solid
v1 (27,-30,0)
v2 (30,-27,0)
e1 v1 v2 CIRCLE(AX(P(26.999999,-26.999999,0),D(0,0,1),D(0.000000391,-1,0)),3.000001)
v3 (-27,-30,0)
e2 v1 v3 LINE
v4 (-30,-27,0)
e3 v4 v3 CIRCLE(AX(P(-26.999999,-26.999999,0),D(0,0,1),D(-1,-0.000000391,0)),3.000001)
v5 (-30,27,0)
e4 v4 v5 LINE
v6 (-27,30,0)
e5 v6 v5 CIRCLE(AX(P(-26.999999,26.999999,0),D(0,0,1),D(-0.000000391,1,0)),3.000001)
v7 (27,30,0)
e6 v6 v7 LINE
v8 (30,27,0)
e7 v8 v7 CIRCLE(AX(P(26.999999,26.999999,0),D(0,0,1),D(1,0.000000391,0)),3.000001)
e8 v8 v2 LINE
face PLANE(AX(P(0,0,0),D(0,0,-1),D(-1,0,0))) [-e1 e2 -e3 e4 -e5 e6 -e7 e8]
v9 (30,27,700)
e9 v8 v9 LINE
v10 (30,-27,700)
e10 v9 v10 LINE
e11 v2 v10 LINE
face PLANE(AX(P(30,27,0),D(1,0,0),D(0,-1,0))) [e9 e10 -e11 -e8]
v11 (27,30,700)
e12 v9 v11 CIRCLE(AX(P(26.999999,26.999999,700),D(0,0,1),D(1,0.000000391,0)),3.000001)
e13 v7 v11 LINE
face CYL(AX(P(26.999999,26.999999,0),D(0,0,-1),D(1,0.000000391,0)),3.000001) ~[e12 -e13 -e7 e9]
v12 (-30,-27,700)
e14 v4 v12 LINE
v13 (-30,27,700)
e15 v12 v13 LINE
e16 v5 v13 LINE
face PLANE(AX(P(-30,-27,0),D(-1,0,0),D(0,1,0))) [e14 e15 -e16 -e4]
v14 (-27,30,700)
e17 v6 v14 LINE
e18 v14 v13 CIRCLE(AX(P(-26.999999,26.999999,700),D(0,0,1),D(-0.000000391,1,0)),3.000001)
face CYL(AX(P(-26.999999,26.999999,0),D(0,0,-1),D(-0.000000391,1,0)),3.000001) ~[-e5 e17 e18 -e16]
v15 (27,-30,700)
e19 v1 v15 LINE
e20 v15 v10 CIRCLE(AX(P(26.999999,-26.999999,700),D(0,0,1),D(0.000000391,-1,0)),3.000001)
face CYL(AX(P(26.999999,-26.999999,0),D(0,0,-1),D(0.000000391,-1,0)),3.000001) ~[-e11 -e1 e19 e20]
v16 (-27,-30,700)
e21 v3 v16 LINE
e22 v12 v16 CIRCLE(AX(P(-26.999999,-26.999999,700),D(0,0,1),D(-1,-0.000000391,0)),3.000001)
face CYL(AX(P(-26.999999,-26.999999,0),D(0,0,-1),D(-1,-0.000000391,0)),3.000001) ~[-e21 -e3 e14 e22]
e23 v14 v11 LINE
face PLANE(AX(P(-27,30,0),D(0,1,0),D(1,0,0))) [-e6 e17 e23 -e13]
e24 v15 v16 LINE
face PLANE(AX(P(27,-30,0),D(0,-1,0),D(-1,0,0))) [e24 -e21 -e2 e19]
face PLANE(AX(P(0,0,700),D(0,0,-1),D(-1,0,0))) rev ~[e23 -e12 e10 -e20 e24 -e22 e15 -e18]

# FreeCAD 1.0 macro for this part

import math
import FreeCAD as App
import Part
import Sketcher
from FreeCAD import Vector
Q = App.Units.Quantity

doc = App.newDocument("Part")
body = doc.addObject("PartDesign::Body", "Body")

sketch1 = body.newObject("Sketcher::SketchObject", "Sketch")
sketch1.AttachmentSupport = (doc.getObject("XY_Plane"), [""])
sketch1.MapMode = "FlatFace"
sketch1.addGeometry([
    Part.LineSegment(Vector(27, 30, 0), Vector(-27, 30, 0)),
    Part.ArcOfCircle(Part.Circle(Vector(-26.999999, 26.999999, 0), Vector(0, 0, 1), 3.000001), math.radians(90.000022), math.radians(179.999978)),
    Part.LineSegment(Vector(-30, 27, 0), Vector(-30, -27, 0)),
    Part.ArcOfCircle(Part.Circle(Vector(-26.999999, -26.999999, 0), Vector(0, 0, 1), 3.000001), math.radians(-179.999978), math.radians(-90.000022)),
    Part.LineSegment(Vector(-27, -30, 0), Vector(27, -30, 0)),
    Part.ArcOfCircle(Part.Circle(Vector(26.999999, -26.999999, 0), Vector(0, 0, 1), 3.000001), math.radians(-89.999978), math.radians(-0.000022)),
    Part.LineSegment(Vector(30, -27, 0), Vector(30, 27, 0)),
    Part.ArcOfCircle(Part.Circle(Vector(26.999999, 26.999999, 0), Vector(0, 0, 1), 3.000001), math.radians(0.000022), math.radians(89.999978)),
], False)
sketch1.addConstraint([
    Sketcher.Constraint("Tangent", 0, 2, 1, 1),
    Sketcher.Constraint("Tangent", 1, 2, 2, 1),
    Sketcher.Constraint("Tangent", 2, 2, 3, 1),
    Sketcher.Constraint("Tangent", 3, 2, 4, 1),
    Sketcher.Constraint("Tangent", 4, 2, 5, 1),
    Sketcher.Constraint("Tangent", 5, 2, 6, 1),
    Sketcher.Constraint("Tangent", 6, 2, 7, 1),
    Sketcher.Constraint("Tangent", 7, 2, 0, 1),
    Sketcher.Constraint("Horizontal", 0),
    Sketcher.Constraint("Vertical", 2),
    Sketcher.Constraint("Horizontal", 4),
    Sketcher.Constraint("Vertical", 6),
    Sketcher.Constraint("Equal", 1, 3),
    Sketcher.Constraint("Equal", 3, 5),
    Sketcher.Constraint("Equal", 5, 7),
    Sketcher.Constraint("Symmetric", 1, 3, 5, 3, -1, 1),
    Sketcher.Constraint("Equal", 4, 2),
    Sketcher.Constraint("Radius", 1, Q("3.000001 mm")),
    Sketcher.Constraint("DistanceX", 0, 2, 0, 1, Q("54 mm")),
])
pad1 = body.newObject("PartDesign::Pad", "Pad")
pad1.Profile = sketch1
pad1.Length = 700

doc.recompute()
